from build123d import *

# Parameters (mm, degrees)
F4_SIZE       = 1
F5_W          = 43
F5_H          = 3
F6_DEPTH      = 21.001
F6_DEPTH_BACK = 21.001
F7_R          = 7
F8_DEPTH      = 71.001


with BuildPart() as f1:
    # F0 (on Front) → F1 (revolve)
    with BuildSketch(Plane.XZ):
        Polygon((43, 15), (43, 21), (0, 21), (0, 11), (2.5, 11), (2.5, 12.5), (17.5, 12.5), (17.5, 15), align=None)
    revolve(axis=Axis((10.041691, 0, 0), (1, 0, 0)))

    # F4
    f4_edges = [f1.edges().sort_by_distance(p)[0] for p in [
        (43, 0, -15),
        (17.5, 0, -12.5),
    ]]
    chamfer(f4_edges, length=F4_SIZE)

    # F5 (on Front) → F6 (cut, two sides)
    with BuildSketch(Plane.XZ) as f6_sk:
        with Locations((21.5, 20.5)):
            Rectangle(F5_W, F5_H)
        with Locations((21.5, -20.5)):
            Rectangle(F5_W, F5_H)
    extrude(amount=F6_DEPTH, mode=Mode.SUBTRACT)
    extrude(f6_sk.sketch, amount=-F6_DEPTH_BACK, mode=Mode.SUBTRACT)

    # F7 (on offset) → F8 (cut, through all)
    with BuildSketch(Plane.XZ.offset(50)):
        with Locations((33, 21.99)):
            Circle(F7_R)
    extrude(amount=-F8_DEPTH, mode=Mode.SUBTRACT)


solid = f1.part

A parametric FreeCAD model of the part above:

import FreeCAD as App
import Part
import Sketcher
from FreeCAD import Vector
Q = App.Units.Quantity


def edges_at(feature, points):
    """Names of the edges that pass closest to the given points."""
    edges = feature.Shape.Edges
    near = lambda p: min(range(len(edges)), key=lambda i: edges[i].distToShape(Part.Vertex(*p))[0])
    return sorted({f"Edge{near(p) + 1}" for p in points})


def add_polygon(sketch, points):
    """Adds a closed chain of lines whose ends are joined by coincident constraints."""
    first, n = sketch.GeometryCount, len(points)
    for a, b in zip(points, points[1:] + points[:1]):
        sketch.addGeometry(Part.LineSegment(App.Vector(*a, 0), App.Vector(*b, 0)), False)
    for i in range(n):
        sketch.addConstraint(Sketcher.Constraint("Coincident", first + i, 2, first + (i + 1) % n, 1))

doc = App.newDocument("Part")
params = doc.addObject("Spreadsheet::Sheet", "Params")
for row, (alias, value) in enumerate([
    ("sketch1_width", "43 mm"),
    ("sketch1_width2", "15 mm"),
    ("sketch1_height", "6 mm"),
    ("sketch1_height2", "10 mm"),
    ("sketch1_width3", "2.5 mm"),
    ("revolution_angle", "360 deg"),
    ("chamfer_size", "1 mm"),
    ("sketch2_width", "43 mm"),
    ("sketch2_height", "3 mm"),
    ("sketch3_diameter", "14 mm"),
], start=1):
    params.set(f"A{row}", alias)
    params.set(f"B{row}", "=" + value)
    params.setAlias(f"B{row}", alias)

body = doc.addObject("PartDesign::Body", "Body")

sketch1 = body.newObject("Sketcher::SketchObject", "Sketch")
sketch1.AttachmentSupport = (doc.getObject("XZ_Plane"), [""])
sketch1.MapMode = "FlatFace"
add_polygon(sketch1, [(43, 15), (43, 21), (0, 21), (0, 11), (2.5, 11), (2.5, 12.5), (17.5, 12.5), (17.5, 15)])
sketch1.addConstraint([
    Sketcher.Constraint("Vertical", 0),
    Sketcher.Constraint("Horizontal", 1),
    Sketcher.Constraint("Vertical", 2),
    Sketcher.Constraint("Horizontal", 3),
    Sketcher.Constraint("Vertical", 4),
    Sketcher.Constraint("Horizontal", 5),
    Sketcher.Constraint("Vertical", 6),
    Sketcher.Constraint("Horizontal", 7),
    Sketcher.Constraint("PointOnObject", 1, 2, -2),
    Sketcher.Constraint("Equal", 3, 6),
    Sketcher.Constraint("DistanceX", 1, 2, 1, 1, Q("43 mm")),
    Sketcher.Constraint("DistanceX", 5, 1, 5, 2, Q("15 mm")),
    Sketcher.Constraint("DistanceY", 0, 1, 0, 2, Q("6 mm")),
    Sketcher.Constraint("DistanceY", 2, 2, 2, 1, Q("10 mm")),
    Sketcher.Constraint("DistanceX", 3, 1, 3, 2, Q("2.5 mm")),
    Sketcher.Constraint("DistanceY", -1, 1, 0, 2, Q("21 mm")),
])
sketch1.setExpression("Constraints[18]", "Params.sketch1_width")
sketch1.setExpression("Constraints[19]", "Params.sketch1_width2")
sketch1.setExpression("Constraints[20]", "Params.sketch1_height")
sketch1.setExpression("Constraints[21]", "Params.sketch1_height2")
sketch1.setExpression("Constraints[22]", "Params.sketch1_width3")
revolution = body.newObject("PartDesign::Revolution", "Revolution")
revolution.Profile = sketch1
revolution.ReferenceAxis = (sketch1, ["H_Axis"])
revolution.setExpression("Angle", "Params.revolution_angle")
doc.recompute()

chamfer = body.newObject("PartDesign::Chamfer", "Chamfer")
chamfer.Base = (revolution, edges_at(revolution, [(43, 0, -15), (17.5, 0, -12.5)]))
chamfer.setExpression("Size", "Params.chamfer_size")

sketch2 = body.newObject("Sketcher::SketchObject", "Sketch001")
sketch2.AttachmentSupport = (doc.getObject("XZ_Plane"), [""])
sketch2.MapMode = "FlatFace"
add_polygon(sketch2, [(0, 22), (0, 19), (43, 19), (43, 22)])
add_polygon(sketch2, [(0, -19), (0, -22), (43, -22), (43, -19)])
sketch2.addConstraint([
    Sketcher.Constraint("Vertical", 0),
    Sketcher.Constraint("Horizontal", 1),
    Sketcher.Constraint("Vertical", 2),
    Sketcher.Constraint("Horizontal", 3),
    Sketcher.Constraint("Vertical", 4),
    Sketcher.Constraint("Horizontal", 5),
    Sketcher.Constraint("Vertical", 6),
    Sketcher.Constraint("Horizontal", 7),
    Sketcher.Constraint("Symmetric", 3, 2, 4, 2, -1, 1),
    Sketcher.Constraint("Symmetric", 1, 2, 6, 2, -1),
    Sketcher.Constraint("PointOnObject", 0, 2, -2),
    Sketcher.Constraint("DistanceX", 1, 1, 1, 2, Q("43 mm")),
    Sketcher.Constraint("DistanceY", 0, 2, 0, 1, Q("3 mm")),
    Sketcher.Constraint("DistanceY", -1, 1, 0, 2, Q("19 mm")),
])
sketch2.setExpression("Constraints[19]", "Params.sketch2_width")
sketch2.setExpression("Constraints[20]", "Params.sketch2_height")
pocket1 = body.newObject("PartDesign::Pocket", "Pocket")
pocket1.Profile = sketch2
pocket1.Type = "ThroughAll"
pocket1.Midplane = True

sketch3 = body.newObject("Sketcher::SketchObject", "Sketch002")
sketch3.AttachmentSupport = (doc.getObject("XZ_Plane"), [""])
sketch3.MapMode = "FlatFace"
sketch3.AttachmentOffset = App.Placement(Vector(0, 0, 50), App.Rotation())
sketch3.addGeometry(Part.Circle(Vector(33, 21.99, 0), Vector(0, 0, 1), 7), False)
sketch3.addConstraint([
    Sketcher.Constraint("Diameter", 0, Q("14 mm")),
    Sketcher.Constraint("DistanceX", -1, 1, 0, 3, Q("33 mm")),
    Sketcher.Constraint("DistanceY", -1, 1, 0, 3, Q("21.99 mm")),
])
sketch3.setExpression("Constraints[0]", "Params.sketch3_diameter")
pocket2 = body.newObject("PartDesign::Pocket", "Pocket001")
pocket2.Profile = sketch3
pocket2.Type = "ThroughAll"

doc.recompute()
